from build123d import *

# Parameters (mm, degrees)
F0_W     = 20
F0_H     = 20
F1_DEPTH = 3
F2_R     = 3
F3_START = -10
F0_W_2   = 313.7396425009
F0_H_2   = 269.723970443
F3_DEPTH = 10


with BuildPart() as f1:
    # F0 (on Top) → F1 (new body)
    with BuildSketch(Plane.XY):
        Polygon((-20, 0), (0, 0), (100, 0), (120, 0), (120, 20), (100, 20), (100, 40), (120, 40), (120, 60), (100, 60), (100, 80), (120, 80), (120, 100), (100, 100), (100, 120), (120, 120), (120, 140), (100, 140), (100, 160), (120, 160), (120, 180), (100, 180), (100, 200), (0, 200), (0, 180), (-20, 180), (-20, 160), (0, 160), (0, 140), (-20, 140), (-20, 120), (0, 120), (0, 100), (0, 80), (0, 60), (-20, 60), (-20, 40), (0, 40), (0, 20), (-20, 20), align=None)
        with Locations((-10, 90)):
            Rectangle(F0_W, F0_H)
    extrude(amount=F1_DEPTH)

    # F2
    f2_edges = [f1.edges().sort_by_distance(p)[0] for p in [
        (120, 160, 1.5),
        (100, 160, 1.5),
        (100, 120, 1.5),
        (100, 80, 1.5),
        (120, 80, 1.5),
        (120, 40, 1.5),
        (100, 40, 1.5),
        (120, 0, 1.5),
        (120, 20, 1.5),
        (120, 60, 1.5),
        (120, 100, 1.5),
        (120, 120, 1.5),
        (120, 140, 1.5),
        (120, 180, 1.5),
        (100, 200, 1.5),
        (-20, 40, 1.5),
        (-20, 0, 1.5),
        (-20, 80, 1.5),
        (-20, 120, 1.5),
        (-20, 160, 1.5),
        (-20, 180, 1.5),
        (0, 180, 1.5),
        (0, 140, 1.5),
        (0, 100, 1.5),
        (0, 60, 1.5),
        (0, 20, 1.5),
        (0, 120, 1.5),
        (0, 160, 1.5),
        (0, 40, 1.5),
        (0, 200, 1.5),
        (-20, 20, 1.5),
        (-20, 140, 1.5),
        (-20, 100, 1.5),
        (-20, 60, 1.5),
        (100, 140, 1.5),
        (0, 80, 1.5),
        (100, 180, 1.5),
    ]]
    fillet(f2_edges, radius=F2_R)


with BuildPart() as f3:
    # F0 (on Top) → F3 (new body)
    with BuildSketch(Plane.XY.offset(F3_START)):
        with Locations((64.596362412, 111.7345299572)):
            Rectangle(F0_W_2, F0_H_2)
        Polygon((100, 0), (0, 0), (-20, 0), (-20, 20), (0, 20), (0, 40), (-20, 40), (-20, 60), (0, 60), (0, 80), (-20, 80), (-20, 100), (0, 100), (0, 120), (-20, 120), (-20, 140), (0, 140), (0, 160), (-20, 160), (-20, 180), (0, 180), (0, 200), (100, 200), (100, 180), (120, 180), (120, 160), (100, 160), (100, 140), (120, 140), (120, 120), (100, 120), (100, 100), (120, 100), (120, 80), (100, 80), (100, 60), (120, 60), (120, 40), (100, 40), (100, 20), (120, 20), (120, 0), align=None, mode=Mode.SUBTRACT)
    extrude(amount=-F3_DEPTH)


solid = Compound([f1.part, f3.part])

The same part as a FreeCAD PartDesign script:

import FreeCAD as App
import Part
import Sketcher

V = App.Vector
Q = App.Units.Quantity


def edges_at(feature, points):
    """Names of the edges that pass closest to the given points."""
    edges = feature.Shape.Edges
    near = lambda p: min(range(len(edges)), key=lambda i: edges[i].distToShape(Part.Vertex(*p))[0])
    return sorted({f"Edge{near(p) + 1}" for p in points})

doc = App.newDocument("Part")
params = doc.addObject("Spreadsheet::Sheet", "Params")
for row, (alias, value) in enumerate([
    ("sketch1_width", "140 mm"),
    ("sketch1_width2", "20 mm"),
    ("pad1_length", "3 mm"),
    ("fillet_radius", "3 mm"),
    ("sketch2_width", "140 mm"),
    ("sketch2_width2", "20 mm"),
    ("pad2_length", "10 mm"),
], start=1):
    params.set(f"A{row}", alias)
    params.set(f"B{row}", "=" + value)
    params.setAlias(f"B{row}", alias)

body = doc.addObject("PartDesign::Body", "Body")

sketch1 = doc.addObject("Sketcher::SketchObject", "Sketch")
body.addObject(sketch1)
sketch1.AttachmentSupport = (doc.XY_Plane, [""])
sketch1.MapMode = "FlatFace"
sketch1.addGeometry(Part.LineSegment(V(-20, 0, 0), V(120, 0, 0)), False)
sketch1.addGeometry(Part.LineSegment(V(120, 0, 0), V(120, 20, 0)), False)
sketch1.addGeometry(Part.LineSegment(V(120, 20, 0), V(100, 20, 0)), False)
sketch1.addGeometry(Part.LineSegment(V(100, 20, 0), V(100, 40, 0)), False)
sketch1.addGeometry(Part.LineSegment(V(100, 40, 0), V(120, 40, 0)), False)
sketch1.addGeometry(Part.LineSegment(V(120, 40, 0), V(120, 60, 0)), False)
sketch1.addGeometry(Part.LineSegment(V(120, 60, 0), V(100, 60, 0)), False)
sketch1.addGeometry(Part.LineSegment(V(100, 60, 0), V(100, 80, 0)), False)
sketch1.addGeometry(Part.LineSegment(V(100, 80, 0), V(120, 80, 0)), False)
sketch1.addGeometry(Part.LineSegment(V(120, 80, 0), V(120, 100, 0)), False)
sketch1.addGeometry(Part.LineSegment(V(120, 100, 0), V(100, 100, 0)), False)
sketch1.addGeometry(Part.LineSegment(V(100, 100, 0), V(100, 120, 0)), False)
sketch1.addGeometry(Part.LineSegment(V(100, 120, 0), V(120, 120, 0)), False)
sketch1.addGeometry(Part.LineSegment(V(120, 120, 0), V(120, 140, 0)), False)
sketch1.addGeometry(Part.LineSegment(V(120, 140, 0), V(100, 140, 0)), False)
sketch1.addGeometry(Part.LineSegment(V(100, 140, 0), V(100, 160, 0)), False)
sketch1.addGeometry(Part.LineSegment(V(100, 160, 0), V(120, 160, 0)), False)
sketch1.addGeometry(Part.LineSegment(V(120, 160, 0), V(120, 180, 0)), False)
sketch1.addGeometry(Part.LineSegment(V(120, 180, 0), V(100, 180, 0)), False)
sketch1.addGeometry(Part.LineSegment(V(100, 180, 0), V(100, 200, 0)), False)
sketch1.addGeometry(Part.LineSegment(V(100, 200, 0), V(0, 200, 0)), False)
sketch1.addGeometry(Part.LineSegment(V(0, 200, 0), V(0, 180, 0)), False)
sketch1.addGeometry(Part.LineSegment(V(0, 180, 0), V(-20, 180, 0)), False)
sketch1.addGeometry(Part.LineSegment(V(-20, 180, 0), V(-20, 160, 0)), False)
sketch1.addGeometry(Part.LineSegment(V(-20, 160, 0), V(0, 160, 0)), False)
sketch1.addGeometry(Part.LineSegment(V(0, 160, 0), V(0, 140, 0)), False)
sketch1.addGeometry(Part.LineSegment(V(0, 140, 0), V(-20, 140, 0)), False)
sketch1.addGeometry(Part.LineSegment(V(-20, 140, 0), V(-20, 120, 0)), False)
sketch1.addGeometry(Part.LineSegment(V(-20, 120, 0), V(0, 120, 0)), False)
sketch1.addGeometry(Part.LineSegment(V(0, 120, 0), V(0, 100, 0)), False)
sketch1.addGeometry(Part.LineSegment(V(0, 100, 0), V(-20, 100, 0)), False)
sketch1.addGeometry(Part.LineSegment(V(-20, 100, 0), V(-20, 80, 0)), False)
sketch1.addGeometry(Part.LineSegment(V(-20, 80, 0), V(0, 80, 0)), False)
sketch1.addGeometry(Part.LineSegment(V(0, 80, 0), V(0, 60, 0)), False)
sketch1.addGeometry(Part.LineSegment(V(0, 60, 0), V(-20, 60, 0)), False)
sketch1.addGeometry(Part.LineSegment(V(-20, 60, 0), V(-20, 40, 0)), False)
sketch1.addGeometry(Part.LineSegment(V(-20, 40, 0), V(0, 40, 0)), False)
sketch1.addGeometry(Part.LineSegment(V(0, 40, 0), V(0, 20, 0)), False)
sketch1.addGeometry(Part.LineSegment(V(0, 20, 0), V(-20, 20, 0)), False)
sketch1.addGeometry(Part.LineSegment(V(-20, 20, 0), V(-20, 0, 0)), False)
sketch1.addConstraint(Sketcher.Constraint("Coincident", 0, 2, 1, 1))
sketch1.addConstraint(Sketcher.Constraint("Coincident", 1, 2, 2, 1))
sketch1.addConstraint(Sketcher.Constraint("Coincident", 2, 2, 3, 1))
sketch1.addConstraint(Sketcher.Constraint("Coincident", 3, 2, 4, 1))
sketch1.addConstraint(Sketcher.Constraint("Coincident", 4, 2, 5, 1))
sketch1.addConstraint(Sketcher.Constraint("Coincident", 5, 2, 6, 1))
sketch1.addConstraint(Sketcher.Constraint("Coincident", 6, 2, 7, 1))
sketch1.addConstraint(Sketcher.Constraint("Coincident", 7, 2, 8, 1))
sketch1.addConstraint(Sketcher.Constraint("Coincident", 8, 2, 9, 1))
sketch1.addConstraint(Sketcher.Constraint("Coincident", 9, 2, 10, 1))
sketch1.addConstraint(Sketcher.Constraint("Coincident", 10, 2, 11, 1))
sketch1.addConstraint(Sketcher.Constraint("Coincident", 11, 2, 12, 1))
sketch1.addConstraint(Sketcher.Constraint("Coincident", 12, 2, 13, 1))
sketch1.addConstraint(Sketcher.Constraint("Coincident", 13, 2, 14, 1))
sketch1.addConstraint(Sketcher.Constraint("Coincident", 14, 2, 15, 1))
sketch1.addConstraint(Sketcher.Constraint("Coincident", 15, 2, 16, 1))
sketch1.addConstraint(Sketcher.Constraint("Coincident", 16, 2, 17, 1))
sketch1.addConstraint(Sketcher.Constraint("Coincident", 17, 2, 18, 1))
sketch1.addConstraint(Sketcher.Constraint("Coincident", 18, 2, 19, 1))
sketch1.addConstraint(Sketcher.Constraint("Coincident", 19, 2, 20, 1))
sketch1.addConstraint(Sketcher.Constraint("Coincident", 20, 2, 21, 1))
sketch1.addConstraint(Sketcher.Constraint("Coincident", 21, 2, 22, 1))
sketch1.addConstraint(Sketcher.Constraint("Coincident", 22, 2, 23, 1))
sketch1.addConstraint(Sketcher.Constraint("Coincident", 23, 2, 24, 1))
sketch1.addConstraint(Sketcher.Constraint("Coincident", 24, 2, 25, 1))
sketch1.addConstraint(Sketcher.Constraint("Coincident", 25, 2, 26, 1))
sketch1.addConstraint(Sketcher.Constraint("Coincident", 26, 2, 27, 1))
sketch1.addConstraint(Sketcher.Constraint("Coincident", 27, 2, 28, 1))
sketch1.addConstraint(Sketcher.Constraint("Coincident", 28, 2, 29, 1))
sketch1.addConstraint(Sketcher.Constraint("Coincident", 29, 2, 30, 1))
sketch1.addConstraint(Sketcher.Constraint("Coincident", 30, 2, 31, 1))
sketch1.addConstraint(Sketcher.Constraint("Coincident", 31, 2, 32, 1))
sketch1.addConstraint(Sketcher.Constraint("Coincident", 32, 2, 33, 1))
sketch1.addConstraint(Sketcher.Constraint("Coincident", 33, 2, 34, 1))
sketch1.addConstraint(Sketcher.Constraint("Coincident", 34, 2, 35, 1))
sketch1.addConstraint(Sketcher.Constraint("Coincident", 35, 2, 36, 1))
sketch1.addConstraint(Sketcher.Constraint("Coincident", 36, 2, 37, 1))
sketch1.addConstraint(Sketcher.Constraint("Coincident", 37, 2, 38, 1))
sketch1.addConstraint(Sketcher.Constraint("Coincident", 38, 2, 39, 1))
sketch1.addConstraint(Sketcher.Constraint("Coincident", 39, 2, 0, 1))
sketch1.addConstraint(Sketcher.Constraint("Horizontal", 0))
sketch1.addConstraint(Sketcher.Constraint("Vertical", 1))
sketch1.addConstraint(Sketcher.Constraint("Horizontal", 2))
sketch1.addConstraint(Sketcher.Constraint("Vertical", 3))
sketch1.addConstraint(Sketcher.Constraint("Horizontal", 4))
sketch1.addConstraint(Sketcher.Constraint("Vertical", 5))
sketch1.addConstraint(Sketcher.Constraint("Horizontal", 6))
sketch1.addConstraint(Sketcher.Constraint("Vertical", 7))
sketch1.addConstraint(Sketcher.Constraint("Horizontal", 8))
sketch1.addConstraint(Sketcher.Constraint("Vertical", 9))
sketch1.addConstraint(Sketcher.Constraint("Horizontal", 10))
sketch1.addConstraint(Sketcher.Constraint("Vertical", 11))
sketch1.addConstraint(Sketcher.Constraint("Horizontal", 12))
sketch1.addConstraint(Sketcher.Constraint("Vertical", 13))
sketch1.addConstraint(Sketcher.Constraint("Horizontal", 14))
sketch1.addConstraint(Sketcher.Constraint("Vertical", 15))
sketch1.addConstraint(Sketcher.Constraint("Horizontal", 16))
sketch1.addConstraint(Sketcher.Constraint("Vertical", 17))
sketch1.addConstraint(Sketcher.Constraint("Horizontal", 18))
sketch1.addConstraint(Sketcher.Constraint("Vertical", 19))
sketch1.addConstraint(Sketcher.Constraint("Horizontal", 20))
sketch1.addConstraint(Sketcher.Constraint("Vertical", 21))
sketch1.addConstraint(Sketcher.Constraint("Horizontal", 22))
sketch1.addConstraint(Sketcher.Constraint("Vertical", 23))
sketch1.addConstraint(Sketcher.Constraint("Horizontal", 24))
sketch1.addConstraint(Sketcher.Constraint("Vertical", 25))
sketch1.addConstraint(Sketcher.Constraint("Horizontal", 26))
sketch1.addConstraint(Sketcher.Constraint("Vertical", 27))
sketch1.addConstraint(Sketcher.Constraint("Horizontal", 28))
sketch1.addConstraint(Sketcher.Constraint("Vertical", 29))
sketch1.addConstraint(Sketcher.Constraint("Horizontal", 30))
sketch1.addConstraint(Sketcher.Constraint("Vertical", 31))
sketch1.addConstraint(Sketcher.Constraint("Horizontal", 32))
sketch1.addConstraint(Sketcher.Constraint("Vertical", 33))
sketch1.addConstraint(Sketcher.Constraint("Horizontal", 34))
sketch1.addConstraint(Sketcher.Constraint("Vertical", 35))
sketch1.addConstraint(Sketcher.Constraint("Horizontal", 36))
sketch1.addConstraint(Sketcher.Constraint("Vertical", 37))
sketch1.addConstraint(Sketcher.Constraint("Horizontal", 38))
sketch1.addConstraint(Sketcher.Constraint("Vertical", 39))
sketch1.addConstraint(Sketcher.Constraint("PointOnObject", 0, 2, -1))
sketch1.addConstraint(Sketcher.Constraint("PointOnObject", 20, 2, -2))
sketch1.addConstraint(Sketcher.Constraint("PointOnObject", 24, 2, -2))
sketch1.addConstraint(Sketcher.Constraint("PointOnObject", 28, 2, -2))
sketch1.addConstraint(Sketcher.Constraint("PointOnObject", 32, 2, -2))
sketch1.addConstraint(Sketcher.Constraint("PointOnObject", 36, 2, -2))
sketch1.addConstraint(Sketcher.Constraint("Horizontal", 18, 2, 21, 2))
sketch1.addConstraint(Sketcher.Constraint("Horizontal", 16, 2, 23, 2))
sketch1.addConstraint(Sketcher.Constraint("Horizontal", 14, 2, 25, 2))
sketch1.addConstraint(Sketcher.Constraint("Horizontal", 12, 2, 27, 2))
sketch1.addConstraint(Sketcher.Constraint("Horizontal", 10, 2, 29, 2))
sketch1.addConstraint(Sketcher.Constraint("Horizontal", 8, 2, 31, 2))
sketch1.addConstraint(Sketcher.Constraint("Horizontal", 6, 2, 33, 2))
sketch1.addConstraint(Sketcher.Constraint("Horizontal", 4, 2, 35, 2))
sketch1.addConstraint(Sketcher.Constraint("Horizontal", 2, 2, 37, 2))
sketch1.addConstraint(Sketcher.Constraint("Vertical", 1, 2, 4, 2))
sketch1.addConstraint(Sketcher.Constraint("Vertical", 3, 2, 6, 2))
sketch1.addConstraint(Sketcher.Constraint("Vertical", 5, 2, 8, 2))
sketch1.addConstraint(Sketcher.Constraint("Vertical", 7, 2, 10, 2))
sketch1.addConstraint(Sketcher.Constraint("Vertical", 9, 2, 12, 2))
sketch1.addConstraint(Sketcher.Constraint("Vertical", 11, 2, 14, 2))
sketch1.addConstraint(Sketcher.Constraint("Vertical", 13, 2, 16, 2))
sketch1.addConstraint(Sketcher.Constraint("Vertical", 15, 2, 18, 2))
sketch1.addConstraint(Sketcher.Constraint("Vertical", 23, 2, 26, 2))
sketch1.addConstraint(Sketcher.Constraint("Vertical", 27, 2, 30, 2))
sketch1.addConstraint(Sketcher.Constraint("Vertical", 31, 2, 34, 2))
sketch1.addConstraint(Sketcher.Constraint("Vertical", 35, 2, 38, 2))
sketch1.addConstraint(Sketcher.Constraint("Equal", 18, 22))
sketch1.addConstraint(Sketcher.Constraint("Equal", 38, 1))
sketch1.addConstraint(Sketcher.Constraint("Equal", 1, 3))
sketch1.addConstraint(Sketcher.Constraint("Equal", 3, 5))
sketch1.addConstraint(Sketcher.Constraint("Equal", 5, 7))
sketch1.addConstraint(Sketcher.Constraint("Equal", 7, 9))
sketch1.addConstraint(Sketcher.Constraint("Equal", 9, 11))
sketch1.addConstraint(Sketcher.Constraint("Equal", 11, 13))
sketch1.addConstraint(Sketcher.Constraint("Equal", 13, 15))
sketch1.addConstraint(Sketcher.Constraint("Equal", 15, 17))
sketch1.addConstraint(Sketcher.Constraint("Equal", 17, 19))
sketch1.addConstraint(Sketcher.Constraint("DistanceX", 0, 1, 0, 2, Q("140 mm")))
sketch1.addConstraint(Sketcher.Constraint("DistanceX", 2, 2, 2, 1, Q("20 mm")))
sketch1.setExpression("Constraints[118]", "Params.sketch1_width")
sketch1.setExpression("Constraints[119]", "Params.sketch1_width2")
pad1 = doc.addObject("PartDesign::Pad", "Pad")
body.addObject(pad1)
pad1.Profile = sketch1
pad1.setExpression("Length", "Params.pad1_length")
doc.recompute()

fillet = doc.addObject("PartDesign::Fillet", "Fillet")
body.addObject(fillet)
fillet.Base = (pad1, edges_at(pad1, [
    (120, 160, 1.5),
    (100, 160, 1.5),
    (100, 120, 1.5),
    (100, 80, 1.5),
    (120, 80, 1.5),
    (120, 40, 1.5),
    (100, 40, 1.5),
    (120, 0, 1.5),
    (120, 20, 1.5),
    (120, 60, 1.5),
    (120, 100, 1.5),
    (120, 120, 1.5),
    (120, 140, 1.5),
    (120, 180, 1.5),
    (100, 200, 1.5),
    (-20, 40, 1.5),
    (-20, 0, 1.5),
    (-20, 80, 1.5),
    (-20, 120, 1.5),
    (-20, 160, 1.5),
    (-20, 180, 1.5),
    (0, 180, 1.5),
    (0, 140, 1.5),
    (0, 100, 1.5),
    (0, 60, 1.5),
    (0, 20, 1.5),
    (0, 120, 1.5),
    (0, 160, 1.5),
    (0, 40, 1.5),
    (0, 200, 1.5),
    (-20, 20, 1.5),
    (-20, 140, 1.5),
    (-20, 100, 1.5),
    (-20, 60, 1.5),
    (100, 140, 1.5),
    (0, 80, 1.5),
    (100, 180, 1.5),
]))
fillet.setExpression("Radius", "Params.fillet_radius")
body2 = doc.addObject("PartDesign::Body", "Body001")

sketch2 = doc.addObject("Sketcher::SketchObject", "Sketch001")
body2.addObject(sketch2)
sketch2.AttachmentSupport = (doc.getObject("XY_Plane001"), [""])
sketch2.MapMode = "FlatFace"
sketch2.AttachmentOffset = App.Placement(V(0, 0, -10), App.Rotation())
sketch2.addGeometry(Part.LineSegment(V(-92, 247, 0), V(-92, -23, 0)), False)
sketch2.addGeometry(Part.LineSegment(V(-92, -23, 0), V(221, -23, 0)), False)
sketch2.addGeometry(Part.LineSegment(V(221, -23, 0), V(221, 247, 0)), False)
sketch2.addGeometry(Part.LineSegment(V(221, 247, 0), V(-92, 247, 0)), False)
sketch2.addGeometry(Part.LineSegment(V(120, 0, 0), V(-20, 0, 0)), False)
sketch2.addGeometry(Part.LineSegment(V(-20, 0, 0), V(-20, 20, 0)), False)
sketch2.addGeometry(Part.LineSegment(V(-20, 20, 0), V(0, 20, 0)), False)
sketch2.addGeometry(Part.LineSegment(V(0, 20, 0), V(0, 40, 0)), False)
sketch2.addGeometry(Part.LineSegment(V(0, 40, 0), V(-20, 40, 0)), False)
sketch2.addGeometry(Part.LineSegment(V(-20, 40, 0), V(-20, 60, 0)), False)
sketch2.addGeometry(Part.LineSegment(V(-20, 60, 0), V(0, 60, 0)), False)
sketch2.addGeometry(Part.LineSegment(V(0, 60, 0), V(0, 80, 0)), False)
sketch2.addGeometry(Part.LineSegment(V(0, 80, 0), V(-20, 80, 0)), False)
sketch2.addGeometry(Part.LineSegment(V(-20, 80, 0), V(-20, 100, 0)), False)
sketch2.addGeometry(Part.LineSegment(V(-20, 100, 0), V(0, 100, 0)), False)
sketch2.addGeometry(Part.LineSegment(V(0, 100, 0), V(0, 120, 0)), False)
sketch2.addGeometry(Part.LineSegment(V(0, 120, 0), V(-20, 120, 0)), False)
sketch2.addGeometry(Part.LineSegment(V(-20, 120, 0), V(-20, 140, 0)), False)
sketch2.addGeometry(Part.LineSegment(V(-20, 140, 0), V(0, 140, 0)), False)
sketch2.addGeometry(Part.LineSegment(V(0, 140, 0), V(0, 160, 0)), False)
sketch2.addGeometry(Part.LineSegment(V(0, 160, 0), V(-20, 160, 0)), False)
sketch2.addGeometry(Part.LineSegment(V(-20, 160, 0), V(-20, 180, 0)), False)
sketch2.addGeometry(Part.LineSegment(V(-20, 180, 0), V(0, 180, 0)), False)
sketch2.addGeometry(Part.LineSegment(V(0, 180, 0), V(0, 200, 0)), False)
sketch2.addGeometry(Part.LineSegment(V(0, 200, 0), V(100, 200, 0)), False)
sketch2.addGeometry(Part.LineSegment(V(100, 200, 0), V(100, 180, 0)), False)
sketch2.addGeometry(Part.LineSegment(V(100, 180, 0), V(120, 180, 0)), False)
sketch2.addGeometry(Part.LineSegment(V(120, 180, 0), V(120, 160, 0)), False)
sketch2.addGeometry(Part.LineSegment(V(120, 160, 0), V(100, 160, 0)), False)
sketch2.addGeometry(Part.LineSegment(V(100, 160, 0), V(100, 140, 0)), False)
sketch2.addGeometry(Part.LineSegment(V(100, 140, 0), V(120, 140, 0)), False)
sketch2.addGeometry(Part.LineSegment(V(120, 140, 0), V(120, 120, 0)), False)
sketch2.addGeometry(Part.LineSegment(V(120, 120, 0), V(100, 120, 0)), False)
sketch2.addGeometry(Part.LineSegment(V(100, 120, 0), V(100, 100, 0)), False)
sketch2.addGeometry(Part.LineSegment(V(100, 100, 0), V(120, 100, 0)), False)
sketch2.addGeometry(Part.LineSegment(V(120, 100, 0), V(120, 80, 0)), False)
sketch2.addGeometry(Part.LineSegment(V(120, 80, 0), V(100, 80, 0)), False)
sketch2.addGeometry(Part.LineSegment(V(100, 80, 0), V(100, 60, 0)), False)
sketch2.addGeometry(Part.LineSegment(V(100, 60, 0), V(120, 60, 0)), False)
sketch2.addGeometry(Part.LineSegment(V(120, 60, 0), V(120, 40, 0)), False)
sketch2.addGeometry(Part.LineSegment(V(120, 40, 0), V(100, 40, 0)), False)
sketch2.addGeometry(Part.LineSegment(V(100, 40, 0), V(100, 20, 0)), False)
sketch2.addGeometry(Part.LineSegment(V(100, 20, 0), V(120, 20, 0)), False)
sketch2.addGeometry(Part.LineSegment(V(120, 20, 0), V(120, 0, 0)), False)
sketch2.addConstraint(Sketcher.Constraint("Coincident", 0, 2, 1, 1))
sketch2.addConstraint(Sketcher.Constraint("Coincident", 1, 2, 2, 1))
sketch2.addConstraint(Sketcher.Constraint("Coincident", 2, 2, 3, 1))
sketch2.addConstraint(Sketcher.Constraint("Coincident", 3, 2, 0, 1))
sketch2.addConstraint(Sketcher.Constraint("Coincident", 4, 2, 5, 1))
sketch2.addConstraint(Sketcher.Constraint("Coincident", 5, 2, 6, 1))
sketch2.addConstraint(Sketcher.Constraint("Coincident", 6, 2, 7, 1))
sketch2.addConstraint(Sketcher.Constraint("Coincident", 7, 2, 8, 1))
sketch2.addConstraint(Sketcher.Constraint("Coincident", 8, 2, 9, 1))
sketch2.addConstraint(Sketcher.Constraint("Coincident", 9, 2, 10, 1))
sketch2.addConstraint(Sketcher.Constraint("Coincident", 10, 2, 11, 1))
sketch2.addConstraint(Sketcher.Constraint("Coincident", 11, 2, 12, 1))
sketch2.addConstraint(Sketcher.Constraint("Coincident", 12, 2, 13, 1))
sketch2.addConstraint(Sketcher.Constraint("Coincident", 13, 2, 14, 1))
sketch2.addConstraint(Sketcher.Constraint("Coincident", 14, 2, 15, 1))
sketch2.addConstraint(Sketcher.Constraint("Coincident", 15, 2, 16, 1))
sketch2.addConstraint(Sketcher.Constraint("Coincident", 16, 2, 17, 1))
sketch2.addConstraint(Sketcher.Constraint("Coincident", 17, 2, 18, 1))
sketch2.addConstraint(Sketcher.Constraint("Coincident", 18, 2, 19, 1))
sketch2.addConstraint(Sketcher.Constraint("Coincident", 19, 2, 20, 1))
sketch2.addConstraint(Sketcher.Constraint("Coincident", 20, 2, 21, 1))
sketch2.addConstraint(Sketcher.Constraint("Coincident", 21, 2, 22, 1))
sketch2.addConstraint(Sketcher.Constraint("Coincident", 22, 2, 23, 1))
sketch2.addConstraint(Sketcher.Constraint("Coincident", 23, 2, 24, 1))
sketch2.addConstraint(Sketcher.Constraint("Coincident", 24, 2, 25, 1))
sketch2.addConstraint(Sketcher.Constraint("Coincident", 25, 2, 26, 1))
sketch2.addConstraint(Sketcher.Constraint("Coincident", 26, 2, 27, 1))
sketch2.addConstraint(Sketcher.Constraint("Coincident", 27, 2, 28, 1))
sketch2.addConstraint(Sketcher.Constraint("Coincident", 28, 2, 29, 1))
sketch2.addConstraint(Sketcher.Constraint("Coincident", 29, 2, 30, 1))
sketch2.addConstraint(Sketcher.Constraint("Coincident", 30, 2, 31, 1))
sketch2.addConstraint(Sketcher.Constraint("Coincident", 31, 2, 32, 1))
sketch2.addConstraint(Sketcher.Constraint("Coincident", 32, 2, 33, 1))
sketch2.addConstraint(Sketcher.Constraint("Coincident", 33, 2, 34, 1))
sketch2.addConstraint(Sketcher.Constraint("Coincident", 34, 2, 35, 1))
sketch2.addConstraint(Sketcher.Constraint("Coincident", 35, 2, 36, 1))
sketch2.addConstraint(Sketcher.Constraint("Coincident", 36, 2, 37, 1))
sketch2.addConstraint(Sketcher.Constraint("Coincident", 37, 2, 38, 1))
sketch2.addConstraint(Sketcher.Constraint("Coincident", 38, 2, 39, 1))
sketch2.addConstraint(Sketcher.Constraint("Coincident", 39, 2, 40, 1))
sketch2.addConstraint(Sketcher.Constraint("Coincident", 40, 2, 41, 1))
sketch2.addConstraint(Sketcher.Constraint("Coincident", 41, 2, 42, 1))
sketch2.addConstraint(Sketcher.Constraint("Coincident", 42, 2, 43, 1))
sketch2.addConstraint(Sketcher.Constraint("Coincident", 43, 2, 4, 1))
sketch2.addConstraint(Sketcher.Constraint("Vertical", 0))
sketch2.addConstraint(Sketcher.Constraint("Horizontal", 1))
sketch2.addConstraint(Sketcher.Constraint("Vertical", 2))
sketch2.addConstraint(Sketcher.Constraint("Horizontal", 3))
sketch2.addConstraint(Sketcher.Constraint("Horizontal", 4))
sketch2.addConstraint(Sketcher.Constraint("Vertical", 5))
sketch2.addConstraint(Sketcher.Constraint("Horizontal", 6))
sketch2.addConstraint(Sketcher.Constraint("Vertical", 7))
sketch2.addConstraint(Sketcher.Constraint("Horizontal", 8))
sketch2.addConstraint(Sketcher.Constraint("Vertical", 9))
sketch2.addConstraint(Sketcher.Constraint("Horizontal", 10))
sketch2.addConstraint(Sketcher.Constraint("Vertical", 11))
sketch2.addConstraint(Sketcher.Constraint("Horizontal", 12))
sketch2.addConstraint(Sketcher.Constraint("Vertical", 13))
sketch2.addConstraint(Sketcher.Constraint("Horizontal", 14))
sketch2.addConstraint(Sketcher.Constraint("Vertical", 15))
sketch2.addConstraint(Sketcher.Constraint("Horizontal", 16))
sketch2.addConstraint(Sketcher.Constraint("Vertical", 17))
sketch2.addConstraint(Sketcher.Constraint("Horizontal", 18))
sketch2.addConstraint(Sketcher.Constraint("Vertical", 19))
sketch2.addConstraint(Sketcher.Constraint("Horizontal", 20))
sketch2.addConstraint(Sketcher.Constraint("Vertical", 21))
sketch2.addConstraint(Sketcher.Constraint("Horizontal", 22))
sketch2.addConstraint(Sketcher.Constraint("Vertical", 23))
sketch2.addConstraint(Sketcher.Constraint("Horizontal", 24))
sketch2.addConstraint(Sketcher.Constraint("Vertical", 25))
sketch2.addConstraint(Sketcher.Constraint("Horizontal", 26))
sketch2.addConstraint(Sketcher.Constraint("Vertical", 27))
sketch2.addConstraint(Sketcher.Constraint("Horizontal", 28))
sketch2.addConstraint(Sketcher.Constraint("Vertical", 29))
sketch2.addConstraint(Sketcher.Constraint("Horizontal", 30))
sketch2.addConstraint(Sketcher.Constraint("Vertical", 31))
sketch2.addConstraint(Sketcher.Constraint("Horizontal", 32))
sketch2.addConstraint(Sketcher.Constraint("Vertical", 33))
sketch2.addConstraint(Sketcher.Constraint("Horizontal", 34))
sketch2.addConstraint(Sketcher.Constraint("Vertical", 35))
sketch2.addConstraint(Sketcher.Constraint("Horizontal", 36))
sketch2.addConstraint(Sketcher.Constraint("Vertical", 37))
sketch2.addConstraint(Sketcher.Constraint("Horizontal", 38))
sketch2.addConstraint(Sketcher.Constraint("Vertical", 39))
sketch2.addConstraint(Sketcher.Constraint("Horizontal", 40))
sketch2.addConstraint(Sketcher.Constraint("Vertical", 41))
sketch2.addConstraint(Sketcher.Constraint("Horizontal", 42))
sketch2.addConstraint(Sketcher.Constraint("Vertical", 43))
sketch2.addConstraint(Sketcher.Constraint("PointOnObject", 4, 2, -1))
sketch2.addConstraint(Sketcher.Constraint("PointOnObject", 6, 2, -2))
sketch2.addConstraint(Sketcher.Constraint("PointOnObject", 10, 2, -2))
sketch2.addConstraint(Sketcher.Constraint("PointOnObject", 14, 2, -2))
sketch2.addConstraint(Sketcher.Constraint("PointOnObject", 18, 2, -2))
sketch2.addConstraint(Sketcher.Constraint("PointOnObject", 22, 2, -2))
sketch2.addConstraint(Sketcher.Constraint("Horizontal", 22, 2, 25, 2))
sketch2.addConstraint(Sketcher.Constraint("Horizontal", 20, 2, 27, 2))
sketch2.addConstraint(Sketcher.Constraint("Horizontal", 18, 2, 29, 2))
sketch2.addConstraint(Sketcher.Constraint("Horizontal", 16, 2, 31, 2))
sketch2.addConstraint(Sketcher.Constraint("Horizontal", 14, 2, 33, 2))
sketch2.addConstraint(Sketcher.Constraint("Horizontal", 12, 2, 35, 2))
sketch2.addConstraint(Sketcher.Constraint("Horizontal", 10, 2, 37, 2))
sketch2.addConstraint(Sketcher.Constraint("Horizontal", 8, 2, 39, 2))
sketch2.addConstraint(Sketcher.Constraint("Horizontal", 6, 2, 41, 2))
sketch2.addConstraint(Sketcher.Constraint("Vertical", 5, 2, 8, 2))
sketch2.addConstraint(Sketcher.Constraint("Vertical", 9, 2, 12, 2))
sketch2.addConstraint(Sketcher.Constraint("Vertical", 13, 2, 16, 2))
sketch2.addConstraint(Sketcher.Constraint("Vertical", 17, 2, 20, 2))
sketch2.addConstraint(Sketcher.Constraint("Vertical", 25, 2, 28, 2))
sketch2.addConstraint(Sketcher.Constraint("Vertical", 27, 2, 30, 2))
sketch2.addConstraint(Sketcher.Constraint("Vertical", 29, 2, 32, 2))
sketch2.addConstraint(Sketcher.Constraint("Vertical", 31, 2, 34, 2))
sketch2.addConstraint(Sketcher.Constraint("Vertical", 33, 2, 36, 2))
sketch2.addConstraint(Sketcher.Constraint("Vertical", 35, 2, 38, 2))
sketch2.addConstraint(Sketcher.Constraint("Vertical", 37, 2, 40, 2))
sketch2.addConstraint(Sketcher.Constraint("Vertical", 39, 2, 42, 2))
sketch2.addConstraint(Sketcher.Constraint("Equal", 22, 26))
sketch2.addConstraint(Sketcher.Constraint("Equal", 42, 5))
sketch2.addConstraint(Sketcher.Constraint("Equal", 5, 7))
sketch2.addConstraint(Sketcher.Constraint("Equal", 7, 9))
sketch2.addConstraint(Sketcher.Constraint("Equal", 9, 11))
sketch2.addConstraint(Sketcher.Constraint("Equal", 11, 13))
sketch2.addConstraint(Sketcher.Constraint("Equal", 13, 15))
sketch2.addConstraint(Sketcher.Constraint("Equal", 15, 17))
sketch2.addConstraint(Sketcher.Constraint("Equal", 17, 19))
sketch2.addConstraint(Sketcher.Constraint("Equal", 19, 21))
sketch2.addConstraint(Sketcher.Constraint("Equal", 21, 23))
sketch2.addConstraint(Sketcher.Constraint("DistanceX", 4, 2, 4, 1, Q("140 mm")))
sketch2.addConstraint(Sketcher.Constraint("DistanceX", 6, 1, 6, 2, Q("20 mm")))
sketch2.addConstraint(Sketcher.Constraint("DistanceY", 0, 2, 0, 1, Q("269.72397 mm")))
sketch2.addConstraint(Sketcher.Constraint("DistanceX", 1, 1, 1, 2, Q("313.739643 mm")))
sketch2.addConstraint(Sketcher.Constraint("DistanceX", 0, 2, -1, 1, Q("92.273459 mm")))
sketch2.addConstraint(Sketcher.Constraint("DistanceY", 0, 2, -1, 1, Q("23.127455 mm")))
sketch2.setExpression("Constraints[126]", "Params.sketch2_width")
sketch2.setExpression("Constraints[127]", "Params.sketch2_width2")
pad2 = doc.addObject("PartDesign::Pad", "Pad001")
body2.addObject(pad2)
pad2.Profile = sketch2
pad2.setExpression("Length", "Params.pad2_length")
pad2.Reversed = True

doc.recompute()
